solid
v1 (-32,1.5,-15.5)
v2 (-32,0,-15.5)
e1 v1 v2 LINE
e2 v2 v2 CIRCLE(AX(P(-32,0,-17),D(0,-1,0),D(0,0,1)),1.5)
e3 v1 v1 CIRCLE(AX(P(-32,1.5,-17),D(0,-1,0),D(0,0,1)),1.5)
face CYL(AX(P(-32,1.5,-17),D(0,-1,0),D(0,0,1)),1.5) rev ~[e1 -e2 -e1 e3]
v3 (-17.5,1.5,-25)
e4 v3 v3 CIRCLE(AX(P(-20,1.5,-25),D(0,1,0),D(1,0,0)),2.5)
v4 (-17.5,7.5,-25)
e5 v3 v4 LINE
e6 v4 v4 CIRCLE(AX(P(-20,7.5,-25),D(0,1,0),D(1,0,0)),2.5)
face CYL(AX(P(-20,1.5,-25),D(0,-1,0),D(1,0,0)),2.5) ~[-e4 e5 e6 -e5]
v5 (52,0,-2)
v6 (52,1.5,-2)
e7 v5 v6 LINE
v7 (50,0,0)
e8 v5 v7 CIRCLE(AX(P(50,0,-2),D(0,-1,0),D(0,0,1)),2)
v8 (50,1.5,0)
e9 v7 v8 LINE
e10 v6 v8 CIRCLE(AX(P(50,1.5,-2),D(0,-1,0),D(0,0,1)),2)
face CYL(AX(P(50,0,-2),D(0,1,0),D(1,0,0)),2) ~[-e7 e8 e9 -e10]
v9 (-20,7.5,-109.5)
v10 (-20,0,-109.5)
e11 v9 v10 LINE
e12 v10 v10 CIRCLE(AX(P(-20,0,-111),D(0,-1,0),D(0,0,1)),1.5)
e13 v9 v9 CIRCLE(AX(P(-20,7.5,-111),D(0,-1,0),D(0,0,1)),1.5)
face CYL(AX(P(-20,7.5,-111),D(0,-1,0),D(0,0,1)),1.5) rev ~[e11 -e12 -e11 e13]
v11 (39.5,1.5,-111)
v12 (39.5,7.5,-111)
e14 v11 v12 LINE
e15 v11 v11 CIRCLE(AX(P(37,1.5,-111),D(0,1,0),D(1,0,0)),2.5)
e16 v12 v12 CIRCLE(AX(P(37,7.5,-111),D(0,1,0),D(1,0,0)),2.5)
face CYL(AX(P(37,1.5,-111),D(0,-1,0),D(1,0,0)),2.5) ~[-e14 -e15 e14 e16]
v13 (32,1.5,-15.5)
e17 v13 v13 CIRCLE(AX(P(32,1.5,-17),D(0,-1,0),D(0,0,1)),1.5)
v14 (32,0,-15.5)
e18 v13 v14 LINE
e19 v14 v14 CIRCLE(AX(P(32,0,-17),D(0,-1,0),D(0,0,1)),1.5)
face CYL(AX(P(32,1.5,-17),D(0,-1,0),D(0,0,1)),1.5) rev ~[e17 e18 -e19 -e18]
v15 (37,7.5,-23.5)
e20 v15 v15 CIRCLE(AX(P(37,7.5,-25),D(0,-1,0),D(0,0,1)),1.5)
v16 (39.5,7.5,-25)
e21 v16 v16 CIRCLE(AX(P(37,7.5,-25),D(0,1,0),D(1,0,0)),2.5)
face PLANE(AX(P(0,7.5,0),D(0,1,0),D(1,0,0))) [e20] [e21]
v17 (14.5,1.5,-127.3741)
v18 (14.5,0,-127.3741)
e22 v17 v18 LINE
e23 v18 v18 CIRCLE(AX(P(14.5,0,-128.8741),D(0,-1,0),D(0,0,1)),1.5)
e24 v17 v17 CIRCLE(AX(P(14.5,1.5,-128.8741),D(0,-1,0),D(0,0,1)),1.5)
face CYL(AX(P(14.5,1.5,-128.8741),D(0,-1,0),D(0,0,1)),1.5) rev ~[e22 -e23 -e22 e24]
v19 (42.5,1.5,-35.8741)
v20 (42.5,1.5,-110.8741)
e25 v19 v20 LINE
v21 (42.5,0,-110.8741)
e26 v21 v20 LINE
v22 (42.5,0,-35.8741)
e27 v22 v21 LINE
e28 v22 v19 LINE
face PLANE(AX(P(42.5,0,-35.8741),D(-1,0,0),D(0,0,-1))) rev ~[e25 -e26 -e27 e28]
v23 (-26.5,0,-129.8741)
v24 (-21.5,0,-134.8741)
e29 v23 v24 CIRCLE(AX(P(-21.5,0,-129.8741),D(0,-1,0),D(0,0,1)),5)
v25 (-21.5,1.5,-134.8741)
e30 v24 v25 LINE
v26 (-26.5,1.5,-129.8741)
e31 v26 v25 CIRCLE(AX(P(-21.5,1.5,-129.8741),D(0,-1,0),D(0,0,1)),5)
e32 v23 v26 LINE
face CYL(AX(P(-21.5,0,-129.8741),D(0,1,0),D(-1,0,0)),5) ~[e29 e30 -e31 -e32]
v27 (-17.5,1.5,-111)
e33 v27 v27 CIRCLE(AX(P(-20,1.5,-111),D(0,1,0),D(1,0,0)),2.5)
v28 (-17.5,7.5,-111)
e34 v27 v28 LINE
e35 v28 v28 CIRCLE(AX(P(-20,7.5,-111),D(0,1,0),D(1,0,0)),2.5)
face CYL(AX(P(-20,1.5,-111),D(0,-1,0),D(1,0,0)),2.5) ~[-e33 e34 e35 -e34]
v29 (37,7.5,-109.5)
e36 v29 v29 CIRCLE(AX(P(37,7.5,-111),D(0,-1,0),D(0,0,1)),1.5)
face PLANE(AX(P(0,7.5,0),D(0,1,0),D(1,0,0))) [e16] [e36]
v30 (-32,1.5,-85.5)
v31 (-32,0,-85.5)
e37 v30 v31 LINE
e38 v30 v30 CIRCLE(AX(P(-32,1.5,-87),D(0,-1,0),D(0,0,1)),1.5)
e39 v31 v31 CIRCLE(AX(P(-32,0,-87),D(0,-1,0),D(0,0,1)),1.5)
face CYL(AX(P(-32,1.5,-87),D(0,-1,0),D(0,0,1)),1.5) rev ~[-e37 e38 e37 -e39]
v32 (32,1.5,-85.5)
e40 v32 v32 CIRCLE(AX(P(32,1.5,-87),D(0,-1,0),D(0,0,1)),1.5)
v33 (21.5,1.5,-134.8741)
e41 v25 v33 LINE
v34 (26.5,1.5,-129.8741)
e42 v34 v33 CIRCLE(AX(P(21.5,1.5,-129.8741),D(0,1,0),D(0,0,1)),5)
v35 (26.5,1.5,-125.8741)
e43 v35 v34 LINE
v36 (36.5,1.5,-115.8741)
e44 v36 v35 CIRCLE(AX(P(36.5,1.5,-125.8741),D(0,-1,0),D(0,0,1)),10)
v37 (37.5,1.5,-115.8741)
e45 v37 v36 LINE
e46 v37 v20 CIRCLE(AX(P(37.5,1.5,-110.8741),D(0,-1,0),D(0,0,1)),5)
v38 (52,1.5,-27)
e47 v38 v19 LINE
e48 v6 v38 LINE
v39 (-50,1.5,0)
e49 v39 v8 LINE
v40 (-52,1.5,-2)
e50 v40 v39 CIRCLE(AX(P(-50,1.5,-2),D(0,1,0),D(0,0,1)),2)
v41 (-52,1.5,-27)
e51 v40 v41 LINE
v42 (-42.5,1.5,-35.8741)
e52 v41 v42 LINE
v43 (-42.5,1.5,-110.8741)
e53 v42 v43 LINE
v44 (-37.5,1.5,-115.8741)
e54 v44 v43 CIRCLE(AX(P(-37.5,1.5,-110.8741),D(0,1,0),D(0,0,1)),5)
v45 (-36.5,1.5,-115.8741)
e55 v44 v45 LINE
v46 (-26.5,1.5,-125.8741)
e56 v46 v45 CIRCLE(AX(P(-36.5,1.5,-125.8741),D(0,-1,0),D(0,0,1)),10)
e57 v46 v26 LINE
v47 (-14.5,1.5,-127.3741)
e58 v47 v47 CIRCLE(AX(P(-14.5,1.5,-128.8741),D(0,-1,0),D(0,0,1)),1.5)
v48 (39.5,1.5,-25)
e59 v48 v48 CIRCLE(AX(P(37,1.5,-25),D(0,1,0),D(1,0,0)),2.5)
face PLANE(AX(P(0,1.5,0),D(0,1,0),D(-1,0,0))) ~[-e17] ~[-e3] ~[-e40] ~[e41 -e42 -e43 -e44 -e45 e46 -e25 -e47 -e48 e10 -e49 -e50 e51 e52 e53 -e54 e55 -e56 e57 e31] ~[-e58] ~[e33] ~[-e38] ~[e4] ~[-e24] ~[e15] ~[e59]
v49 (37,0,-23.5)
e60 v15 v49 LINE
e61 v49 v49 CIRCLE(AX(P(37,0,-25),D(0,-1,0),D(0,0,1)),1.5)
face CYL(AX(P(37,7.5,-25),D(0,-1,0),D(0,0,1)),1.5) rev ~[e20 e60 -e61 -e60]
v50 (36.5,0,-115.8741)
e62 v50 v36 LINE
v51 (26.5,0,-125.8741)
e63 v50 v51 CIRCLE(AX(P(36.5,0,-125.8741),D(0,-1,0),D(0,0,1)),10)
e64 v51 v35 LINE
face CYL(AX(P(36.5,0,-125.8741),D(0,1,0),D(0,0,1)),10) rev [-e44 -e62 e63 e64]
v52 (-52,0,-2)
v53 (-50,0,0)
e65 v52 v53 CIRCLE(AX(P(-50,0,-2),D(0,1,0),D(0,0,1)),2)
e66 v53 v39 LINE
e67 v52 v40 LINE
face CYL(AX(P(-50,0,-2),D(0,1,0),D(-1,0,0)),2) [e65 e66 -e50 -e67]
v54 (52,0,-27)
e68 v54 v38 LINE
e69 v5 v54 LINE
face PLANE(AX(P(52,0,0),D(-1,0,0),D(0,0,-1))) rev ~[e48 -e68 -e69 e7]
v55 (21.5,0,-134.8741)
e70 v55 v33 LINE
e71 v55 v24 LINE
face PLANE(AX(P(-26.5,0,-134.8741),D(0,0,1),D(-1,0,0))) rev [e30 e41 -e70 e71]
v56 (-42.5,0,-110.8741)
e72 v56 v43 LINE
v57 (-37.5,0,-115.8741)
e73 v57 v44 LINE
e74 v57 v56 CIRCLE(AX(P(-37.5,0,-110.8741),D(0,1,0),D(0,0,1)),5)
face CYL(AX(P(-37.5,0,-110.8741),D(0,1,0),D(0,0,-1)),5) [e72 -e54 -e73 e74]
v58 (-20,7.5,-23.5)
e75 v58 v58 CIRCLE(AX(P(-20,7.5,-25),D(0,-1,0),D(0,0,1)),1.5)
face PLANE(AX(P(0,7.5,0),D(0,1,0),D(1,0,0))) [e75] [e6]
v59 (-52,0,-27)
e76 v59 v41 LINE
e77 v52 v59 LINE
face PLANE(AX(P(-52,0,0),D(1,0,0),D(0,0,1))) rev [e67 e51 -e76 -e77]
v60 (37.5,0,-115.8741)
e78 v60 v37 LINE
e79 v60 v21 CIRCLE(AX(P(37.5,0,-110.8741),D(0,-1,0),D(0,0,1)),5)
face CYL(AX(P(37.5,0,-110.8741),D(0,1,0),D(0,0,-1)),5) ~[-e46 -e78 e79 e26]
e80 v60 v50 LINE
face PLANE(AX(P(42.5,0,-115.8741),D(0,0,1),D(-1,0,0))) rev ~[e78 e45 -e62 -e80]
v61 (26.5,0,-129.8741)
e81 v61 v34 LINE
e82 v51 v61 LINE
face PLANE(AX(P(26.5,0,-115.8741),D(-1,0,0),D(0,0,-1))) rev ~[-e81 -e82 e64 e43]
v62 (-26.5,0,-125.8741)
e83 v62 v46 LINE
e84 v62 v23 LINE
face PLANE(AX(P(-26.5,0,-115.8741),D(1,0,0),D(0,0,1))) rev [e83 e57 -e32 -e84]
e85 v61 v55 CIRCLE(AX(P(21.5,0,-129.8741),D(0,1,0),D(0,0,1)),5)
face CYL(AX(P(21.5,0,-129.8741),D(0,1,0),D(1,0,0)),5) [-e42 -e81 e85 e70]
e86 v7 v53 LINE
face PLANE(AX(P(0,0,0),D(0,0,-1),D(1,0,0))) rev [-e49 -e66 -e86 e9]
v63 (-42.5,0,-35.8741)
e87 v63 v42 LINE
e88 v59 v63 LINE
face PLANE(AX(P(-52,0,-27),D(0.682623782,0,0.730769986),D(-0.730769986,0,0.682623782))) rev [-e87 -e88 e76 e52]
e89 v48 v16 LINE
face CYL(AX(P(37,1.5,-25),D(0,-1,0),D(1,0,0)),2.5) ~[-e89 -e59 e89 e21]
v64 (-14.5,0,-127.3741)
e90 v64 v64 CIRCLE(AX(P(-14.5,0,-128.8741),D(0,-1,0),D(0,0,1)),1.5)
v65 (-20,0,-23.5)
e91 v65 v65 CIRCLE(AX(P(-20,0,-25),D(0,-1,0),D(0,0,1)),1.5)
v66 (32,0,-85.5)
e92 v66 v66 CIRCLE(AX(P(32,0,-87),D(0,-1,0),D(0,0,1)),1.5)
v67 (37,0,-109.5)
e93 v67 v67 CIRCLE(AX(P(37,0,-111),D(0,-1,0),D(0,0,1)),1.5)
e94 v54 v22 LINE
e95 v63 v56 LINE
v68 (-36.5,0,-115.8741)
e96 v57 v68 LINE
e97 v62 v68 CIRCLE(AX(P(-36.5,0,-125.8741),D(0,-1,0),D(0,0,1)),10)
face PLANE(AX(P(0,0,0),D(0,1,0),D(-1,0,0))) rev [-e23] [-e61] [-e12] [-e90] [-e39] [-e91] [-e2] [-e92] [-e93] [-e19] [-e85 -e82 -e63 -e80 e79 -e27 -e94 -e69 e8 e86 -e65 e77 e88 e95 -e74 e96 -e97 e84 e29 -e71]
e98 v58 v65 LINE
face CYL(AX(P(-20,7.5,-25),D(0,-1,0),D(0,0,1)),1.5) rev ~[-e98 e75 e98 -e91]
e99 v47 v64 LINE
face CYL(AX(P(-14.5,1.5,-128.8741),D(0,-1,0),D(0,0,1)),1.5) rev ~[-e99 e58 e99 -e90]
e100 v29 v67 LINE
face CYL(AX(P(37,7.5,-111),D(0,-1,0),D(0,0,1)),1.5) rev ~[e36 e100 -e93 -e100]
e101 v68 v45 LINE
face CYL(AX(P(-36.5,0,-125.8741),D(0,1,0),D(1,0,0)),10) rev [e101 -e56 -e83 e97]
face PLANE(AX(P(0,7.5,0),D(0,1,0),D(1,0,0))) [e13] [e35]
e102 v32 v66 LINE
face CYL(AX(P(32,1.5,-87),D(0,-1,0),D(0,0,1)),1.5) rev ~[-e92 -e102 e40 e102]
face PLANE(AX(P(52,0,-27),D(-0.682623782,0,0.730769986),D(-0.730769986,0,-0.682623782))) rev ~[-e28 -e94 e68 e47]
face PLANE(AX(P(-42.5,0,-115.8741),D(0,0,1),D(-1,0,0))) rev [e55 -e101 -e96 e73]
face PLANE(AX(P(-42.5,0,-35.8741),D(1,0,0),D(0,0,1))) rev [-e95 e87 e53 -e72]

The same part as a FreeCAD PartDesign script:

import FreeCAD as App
import Part
import Sketcher

V = App.Vector
Q = App.Units.Quantity


def edges_at(feature, points):
    """Names of the edges that pass closest to the given points."""
    edges = feature.Shape.Edges
    near = lambda p: min(range(len(edges)), key=lambda i: edges[i].distToShape(Part.Vertex(*p))[0])
    return sorted({f"Edge{near(p) + 1}" for p in points})

doc = App.newDocument("Part")
params = doc.addObject("Spreadsheet::Sheet", "Params")
for row, (alias, value) in enumerate([
    ("sketch1_width", "52 mm"),
    ("sketch1_width2", "16 mm"),
    ("sketch1_height", "27 mm"),
    ("sketch1_height2", "80 mm"),
    ("sketch1_height3", "19 mm"),
    ("pad1_length", "1.5 mm"),
    ("fillet_radius", "2 mm"),
    ("fillet2_radius", "10 mm"),
    ("fillet3_radius", "5 mm"),
    ("fillet4_radius", "5 mm"),
    ("sketch2_diameter", "3 mm"),
    ("hole_diameter", "3 mm"),
    ("sketch3_diameter", "3 mm"),
    ("hole2_diameter", "3 mm"),
    ("sketch4_diameter", "5 mm"),
    ("pad2_length", "6 mm"),
    ("sketch5_diameter", "3 mm"),
    ("hole3_diameter", "3 mm"),
], start=1):
    params.set(f"A{row}", alias)
    params.set(f"B{row}", "=" + value)
    params.setAlias(f"B{row}", alias)

body = doc.addObject("PartDesign::Body", "Body")

sketch1 = body.newObject("Sketcher::SketchObject", "Sketch")
sketch1.AttachmentSupport = (doc.getObject("XZ_Plane"), [""])
sketch1.MapMode = "FlatFace"
sketch1.addGeometry(Part.LineSegment(V(0, -134.8741, 0), V(0, 0, 0)), False)
sketch1.addGeometry(Part.LineSegment(V(0, 0, 0), V(52, 0, 0)), False)
sketch1.addGeometry(Part.LineSegment(V(52, 0, 0), V(52, -27, 0)), False)
sketch1.addGeometry(Part.LineSegment(V(52, -27, 0), V(42.5, -35.8741, 0)), False)
sketch1.addGeometry(Part.LineSegment(V(42.5, -35.8741, 0), V(42.5, -115.8741, 0)), False)
sketch1.addGeometry(Part.LineSegment(V(42.5, -115.8741, 0), V(26.5, -115.8741, 0)), False)
sketch1.addGeometry(Part.LineSegment(V(26.5, -115.8741, 0), V(26.5, -134.8741, 0)), False)
sketch1.addGeometry(Part.LineSegment(V(26.5, -134.8741, 0), V(0, -134.8741, 0)), False)
sketch1.addConstraint(Sketcher.Constraint("Coincident", 0, 2, 1, 1))
sketch1.addConstraint(Sketcher.Constraint("Coincident", 1, 2, 2, 1))
sketch1.addConstraint(Sketcher.Constraint("Coincident", 2, 2, 3, 1))
sketch1.addConstraint(Sketcher.Constraint("Coincident", 3, 2, 4, 1))
sketch1.addConstraint(Sketcher.Constraint("Coincident", 4, 2, 5, 1))
sketch1.addConstraint(Sketcher.Constraint("Coincident", 5, 2, 6, 1))
sketch1.addConstraint(Sketcher.Constraint("Coincident", 6, 2, 7, 1))
sketch1.addConstraint(Sketcher.Constraint("Coincident", 7, 2, 0, 1))
sketch1.addConstraint(Sketcher.Constraint("Vertical", 0))
sketch1.addConstraint(Sketcher.Constraint("Horizontal", 1))
sketch1.addConstraint(Sketcher.Constraint("Vertical", 2))
sketch1.addConstraint(Sketcher.Constraint("Vertical", 4))
sketch1.addConstraint(Sketcher.Constraint("Horizontal", 5))
sketch1.addConstraint(Sketcher.Constraint("Vertical", 6))
sketch1.addConstraint(Sketcher.Constraint("Horizontal", 7))
sketch1.addConstraint(Sketcher.Constraint("Coincident", 0, 2, -1, 1))
sketch1.addConstraint(Sketcher.Constraint("DistanceX", 1, 1, 1, 2, Q("52 mm")))
sketch1.addConstraint(Sketcher.Constraint("DistanceX", 5, 2, 5, 1, Q("16 mm")))
sketch1.addConstraint(Sketcher.Constraint("DistanceY", 2, 2, 2, 1, Q("27 mm")))
sketch1.addConstraint(Sketcher.Constraint("DistanceY", 4, 2, 4, 1, Q("80 mm")))
sketch1.addConstraint(Sketcher.Constraint("DistanceY", 6, 2, 6, 1, Q("19 mm")))
sketch1.addConstraint(Sketcher.Constraint("Distance", 3, Q("13 mm")))
sketch1.addConstraint(Sketcher.Constraint("DistanceX", 7, 2, 7, 1, Q("26.5 mm")))
sketch1.setExpression("Constraints[16]", "Params.sketch1_width")
sketch1.setExpression("Constraints[17]", "Params.sketch1_width2")
sketch1.setExpression("Constraints[18]", "Params.sketch1_height")
sketch1.setExpression("Constraints[19]", "Params.sketch1_height2")
sketch1.setExpression("Constraints[20]", "Params.sketch1_height3")
pad1 = body.newObject("PartDesign::Pad", "Pad")
pad1.Profile = sketch1
pad1.setExpression("Length", "Params.pad1_length")
pad1.Reversed = True
doc.recompute()

fillet = body.newObject("PartDesign::Fillet", "Fillet")
fillet.Base = (pad1, edges_at(pad1, [(52, 0.75, 0)]))
fillet.setExpression("Radius", "Params.fillet_radius")
doc.recompute()

fillet2 = body.newObject("PartDesign::Fillet", "Fillet001")
fillet2.Base = (fillet, edges_at(fillet, [(26.5, 0.75, -115.874)]))
fillet2.setExpression("Radius", "Params.fillet2_radius")
doc.recompute()

fillet3 = body.newObject("PartDesign::Fillet", "Fillet002")
fillet3.Base = (fillet2, edges_at(fillet2, [(42.5, 0.75, -115.874)]))
fillet3.setExpression("Radius", "Params.fillet3_radius")
doc.recompute()

fillet4 = body.newObject("PartDesign::Fillet", "Fillet003")
fillet4.Base = (fillet3, edges_at(fillet3, [(26.5, 0.75, -134.874)]))
fillet4.setExpression("Radius", "Params.fillet4_radius")
doc.recompute()

mirrored = body.newObject("PartDesign::Mirrored", "Mirrored")
mirrored.Originals = [pad1]
mirrored.MirrorPlane = (doc.getObject("YZ_Plane"), [""])
body.Tip = mirrored
doc.recompute()

mirrored2 = body.newObject("PartDesign::Mirrored", "Mirrored001")
mirrored2.Originals = [fillet2, fillet4, fillet3, fillet]
mirrored2.MirrorPlane = (doc.getObject("YZ_Plane"), [""])
body.Tip = mirrored2

sketch2 = body.newObject("Sketcher::SketchObject", "Sketch001")
sketch2.AttachmentSupport = (doc.getObject("XZ_Plane"), [""])
sketch2.MapMode = "FlatFace"
sketch2.AttachmentOffset = App.Placement(V(0, 0, -1.5), App.Rotation())
sketch2.addGeometry(Part.Circle(V(14.5, -128.8741, 0), V(0, 0, 1), 1.5), False)
sketch2.addGeometry(Part.Circle(V(-14.5, -128.8741, 0), V(0, 0, 1), 1.5), False)
sketch2.addConstraint(Sketcher.Constraint("Equal", 0, 1))
sketch2.addConstraint(Sketcher.Constraint("Symmetric", 0, 3, 1, 3, -2))
sketch2.addConstraint(Sketcher.Constraint("Diameter", 0, Q("3 mm")))
sketch2.addConstraint(Sketcher.Constraint("DistanceX", 1, 3, 0, 3, Q("29 mm")))
sketch2.addConstraint(Sketcher.Constraint("DistanceY", 0, 3, -1, 1, Q("128.874 mm")))
sketch2.setExpression("Constraints[2]", "Params.sketch2_diameter")
doc.recompute()
hole = body.newObject("PartDesign::Hole", "Hole")
hole.Profile = sketch2
hole.ThreadType = "None"
hole.setExpression("Diameter", "Params.hole_diameter")
hole.DepthType = "ThroughAll"
hole.Reversed = True

sketch3 = body.newObject("Sketcher::SketchObject", "Sketch002")
sketch3.AttachmentSupport = (doc.getObject("XZ_Plane"), [""])
sketch3.MapMode = "FlatFace"
sketch3.AttachmentOffset = App.Placement(V(0, 0, -1.5), App.Rotation())
sketch3.addGeometry(Part.Circle(V(32, -17, 0), V(0, 0, 1), 1.5), False)
sketch3.addGeometry(Part.Circle(V(-32, -17, 0), V(0, 0, 1), 1.5), False)
sketch3.addGeometry(Part.Circle(V(-32, -87, 0), V(0, 0, 1), 1.5), False)
sketch3.addGeometry(Part.Circle(V(32, -87, 0), V(0, 0, 1), 1.5), False)
sketch3.addConstraint(Sketcher.Constraint("Equal", 0, 1))
sketch3.addConstraint(Sketcher.Constraint("Equal", 1, 2))
sketch3.addConstraint(Sketcher.Constraint("Equal", 2, 3))
sketch3.addConstraint(Sketcher.Constraint("Symmetric", 0, 3, 1, 3, -2))
sketch3.addConstraint(Sketcher.Constraint("Symmetric", 2, 3, 3, 3, -2))
sketch3.addConstraint(Sketcher.Constraint("Vertical", 1, 3, 2, 3))
sketch3.addConstraint(Sketcher.Constraint("Diameter", 0, Q("3 mm")))
sketch3.addConstraint(Sketcher.Constraint("DistanceX", -1, 1, 0, 3, Q("32 mm")))
sketch3.addConstraint(Sketcher.Constraint("DistanceY", 0, 3, -1, 1, Q("17 mm")))
sketch3.addConstraint(Sketcher.Constraint("DistanceY", 2, 3, -1, 1, Q("87 mm")))
sketch3.setExpression("Constraints[6]", "Params.sketch3_diameter")
doc.recompute()
hole2 = body.newObject("PartDesign::Hole", "Hole001")
hole2.Profile = sketch3
hole2.ThreadType = "None"
hole2.setExpression("Diameter", "Params.hole2_diameter")
hole2.DepthType = "ThroughAll"
hole2.Reversed = True

sketch4 = body.newObject("Sketcher::SketchObject", "Sketch003")
sketch4.AttachmentSupport = (doc.getObject("XZ_Plane"), [""])
sketch4.MapMode = "FlatFace"
sketch4.AttachmentOffset = App.Placement(V(0, 0, -1.5), App.Rotation())
sketch4.addGeometry(Part.Circle(V(37, -25, 0), V(0, 0, 1), 2.5), False)
sketch4.addGeometry(Part.Circle(V(37, -111, 0), V(0, 0, 1), 2.5), False)
sketch4.addGeometry(Part.Circle(V(-20, -25, 0), V(0, 0, 1), 2.5), False)
sketch4.addGeometry(Part.Circle(V(-20, -111, 0), V(0, 0, 1), 2.5), False)
sketch4.addConstraint(Sketcher.Constraint("Equal", 0, 1))
sketch4.addConstraint(Sketcher.Constraint("Equal", 1, 2))
sketch4.addConstraint(Sketcher.Constraint("Equal", 2, 3))
sketch4.addConstraint(Sketcher.Constraint("Horizontal", 0, 3, 2, 3))
sketch4.addConstraint(Sketcher.Constraint("Horizontal", 1, 3, 3, 3))
sketch4.addConstraint(Sketcher.Constraint("Vertical", 0, 3, 1, 3))
sketch4.addConstraint(Sketcher.Constraint("Vertical", 2, 3, 3, 3))
sketch4.addConstraint(Sketcher.Constraint("Diameter", 0, Q("5 mm")))
sketch4.addConstraint(Sketcher.Constraint("DistanceY", 0, 3, -1, 1, Q("25 mm")))
sketch4.addConstraint(Sketcher.Constraint("DistanceY", 1, 3, 0, 3, Q("86 mm")))
sketch4.addConstraint(Sketcher.Constraint("DistanceX", 2, 3, 0, 3, Q("57 mm")))
sketch4.addConstraint(Sketcher.Constraint("DistanceX", -1, 1, 0, 3, Q("37 mm")))
sketch4.setExpression("Constraints[7]", "Params.sketch4_diameter")
pad2 = body.newObject("PartDesign::Pad", "Pad001")
pad2.Profile = sketch4
pad2.setExpression("Length", "Params.pad2_length")
pad2.Reversed = True

sketch5 = body.newObject("Sketcher::SketchObject", "Sketch004")
sketch5.AttachmentSupport = (doc.getObject("XZ_Plane"), [""])
sketch5.MapMode = "FlatFace"
sketch5.AttachmentOffset = App.Placement(V(0, 0, -7.5), App.Rotation())
sketch5.addGeometry(Part.Circle(V(37, -111, 0), V(0, 0, 1), 1.5), False)
sketch5.addGeometry(Part.Circle(V(37, -25, 0), V(0, 0, 1), 1.5), False)
sketch5.addGeometry(Part.Circle(V(-20, -25, 0), V(0, 0, 1), 1.5), False)
sketch5.addGeometry(Part.Circle(V(-20, -111, 0), V(0, 0, 1), 1.5), False)
sketch5.addConstraint(Sketcher.Constraint("Equal", 0, 1))
sketch5.addConstraint(Sketcher.Constraint("Equal", 1, 2))
sketch5.addConstraint(Sketcher.Constraint("Equal", 2, 3))
sketch5.addConstraint(Sketcher.Constraint("Horizontal", 1, 3, 2, 3))
sketch5.addConstraint(Sketcher.Constraint("Horizontal", 0, 3, 3, 3))
sketch5.addConstraint(Sketcher.Constraint("Vertical", 0, 3, 1, 3))
sketch5.addConstraint(Sketcher.Constraint("Vertical", 2, 3, 3, 3))
sketch5.addConstraint(Sketcher.Constraint("Diameter", 0, Q("3 mm")))
sketch5.addConstraint(Sketcher.Constraint("DistanceX", -1, 1, 0, 3, Q("37 mm")))
sketch5.addConstraint(Sketcher.Constraint("DistanceY", 0, 3, -1, 1, Q("111 mm")))
sketch5.addConstraint(Sketcher.Constraint("DistanceY", 1, 3, -1, 1, Q("25 mm")))
sketch5.addConstraint(Sketcher.Constraint("DistanceX", 2, 3, -1, 1, Q("20 mm")))
sketch5.setExpression("Constraints[7]", "Params.sketch5_diameter")
doc.recompute()
hole3 = body.newObject("PartDesign::Hole", "Hole002")
hole3.Profile = sketch5
hole3.ThreadType = "None"
hole3.setExpression("Diameter", "Params.hole3_diameter")
hole3.DepthType = "ThroughAll"
hole3.Reversed = True

doc.recompute()
